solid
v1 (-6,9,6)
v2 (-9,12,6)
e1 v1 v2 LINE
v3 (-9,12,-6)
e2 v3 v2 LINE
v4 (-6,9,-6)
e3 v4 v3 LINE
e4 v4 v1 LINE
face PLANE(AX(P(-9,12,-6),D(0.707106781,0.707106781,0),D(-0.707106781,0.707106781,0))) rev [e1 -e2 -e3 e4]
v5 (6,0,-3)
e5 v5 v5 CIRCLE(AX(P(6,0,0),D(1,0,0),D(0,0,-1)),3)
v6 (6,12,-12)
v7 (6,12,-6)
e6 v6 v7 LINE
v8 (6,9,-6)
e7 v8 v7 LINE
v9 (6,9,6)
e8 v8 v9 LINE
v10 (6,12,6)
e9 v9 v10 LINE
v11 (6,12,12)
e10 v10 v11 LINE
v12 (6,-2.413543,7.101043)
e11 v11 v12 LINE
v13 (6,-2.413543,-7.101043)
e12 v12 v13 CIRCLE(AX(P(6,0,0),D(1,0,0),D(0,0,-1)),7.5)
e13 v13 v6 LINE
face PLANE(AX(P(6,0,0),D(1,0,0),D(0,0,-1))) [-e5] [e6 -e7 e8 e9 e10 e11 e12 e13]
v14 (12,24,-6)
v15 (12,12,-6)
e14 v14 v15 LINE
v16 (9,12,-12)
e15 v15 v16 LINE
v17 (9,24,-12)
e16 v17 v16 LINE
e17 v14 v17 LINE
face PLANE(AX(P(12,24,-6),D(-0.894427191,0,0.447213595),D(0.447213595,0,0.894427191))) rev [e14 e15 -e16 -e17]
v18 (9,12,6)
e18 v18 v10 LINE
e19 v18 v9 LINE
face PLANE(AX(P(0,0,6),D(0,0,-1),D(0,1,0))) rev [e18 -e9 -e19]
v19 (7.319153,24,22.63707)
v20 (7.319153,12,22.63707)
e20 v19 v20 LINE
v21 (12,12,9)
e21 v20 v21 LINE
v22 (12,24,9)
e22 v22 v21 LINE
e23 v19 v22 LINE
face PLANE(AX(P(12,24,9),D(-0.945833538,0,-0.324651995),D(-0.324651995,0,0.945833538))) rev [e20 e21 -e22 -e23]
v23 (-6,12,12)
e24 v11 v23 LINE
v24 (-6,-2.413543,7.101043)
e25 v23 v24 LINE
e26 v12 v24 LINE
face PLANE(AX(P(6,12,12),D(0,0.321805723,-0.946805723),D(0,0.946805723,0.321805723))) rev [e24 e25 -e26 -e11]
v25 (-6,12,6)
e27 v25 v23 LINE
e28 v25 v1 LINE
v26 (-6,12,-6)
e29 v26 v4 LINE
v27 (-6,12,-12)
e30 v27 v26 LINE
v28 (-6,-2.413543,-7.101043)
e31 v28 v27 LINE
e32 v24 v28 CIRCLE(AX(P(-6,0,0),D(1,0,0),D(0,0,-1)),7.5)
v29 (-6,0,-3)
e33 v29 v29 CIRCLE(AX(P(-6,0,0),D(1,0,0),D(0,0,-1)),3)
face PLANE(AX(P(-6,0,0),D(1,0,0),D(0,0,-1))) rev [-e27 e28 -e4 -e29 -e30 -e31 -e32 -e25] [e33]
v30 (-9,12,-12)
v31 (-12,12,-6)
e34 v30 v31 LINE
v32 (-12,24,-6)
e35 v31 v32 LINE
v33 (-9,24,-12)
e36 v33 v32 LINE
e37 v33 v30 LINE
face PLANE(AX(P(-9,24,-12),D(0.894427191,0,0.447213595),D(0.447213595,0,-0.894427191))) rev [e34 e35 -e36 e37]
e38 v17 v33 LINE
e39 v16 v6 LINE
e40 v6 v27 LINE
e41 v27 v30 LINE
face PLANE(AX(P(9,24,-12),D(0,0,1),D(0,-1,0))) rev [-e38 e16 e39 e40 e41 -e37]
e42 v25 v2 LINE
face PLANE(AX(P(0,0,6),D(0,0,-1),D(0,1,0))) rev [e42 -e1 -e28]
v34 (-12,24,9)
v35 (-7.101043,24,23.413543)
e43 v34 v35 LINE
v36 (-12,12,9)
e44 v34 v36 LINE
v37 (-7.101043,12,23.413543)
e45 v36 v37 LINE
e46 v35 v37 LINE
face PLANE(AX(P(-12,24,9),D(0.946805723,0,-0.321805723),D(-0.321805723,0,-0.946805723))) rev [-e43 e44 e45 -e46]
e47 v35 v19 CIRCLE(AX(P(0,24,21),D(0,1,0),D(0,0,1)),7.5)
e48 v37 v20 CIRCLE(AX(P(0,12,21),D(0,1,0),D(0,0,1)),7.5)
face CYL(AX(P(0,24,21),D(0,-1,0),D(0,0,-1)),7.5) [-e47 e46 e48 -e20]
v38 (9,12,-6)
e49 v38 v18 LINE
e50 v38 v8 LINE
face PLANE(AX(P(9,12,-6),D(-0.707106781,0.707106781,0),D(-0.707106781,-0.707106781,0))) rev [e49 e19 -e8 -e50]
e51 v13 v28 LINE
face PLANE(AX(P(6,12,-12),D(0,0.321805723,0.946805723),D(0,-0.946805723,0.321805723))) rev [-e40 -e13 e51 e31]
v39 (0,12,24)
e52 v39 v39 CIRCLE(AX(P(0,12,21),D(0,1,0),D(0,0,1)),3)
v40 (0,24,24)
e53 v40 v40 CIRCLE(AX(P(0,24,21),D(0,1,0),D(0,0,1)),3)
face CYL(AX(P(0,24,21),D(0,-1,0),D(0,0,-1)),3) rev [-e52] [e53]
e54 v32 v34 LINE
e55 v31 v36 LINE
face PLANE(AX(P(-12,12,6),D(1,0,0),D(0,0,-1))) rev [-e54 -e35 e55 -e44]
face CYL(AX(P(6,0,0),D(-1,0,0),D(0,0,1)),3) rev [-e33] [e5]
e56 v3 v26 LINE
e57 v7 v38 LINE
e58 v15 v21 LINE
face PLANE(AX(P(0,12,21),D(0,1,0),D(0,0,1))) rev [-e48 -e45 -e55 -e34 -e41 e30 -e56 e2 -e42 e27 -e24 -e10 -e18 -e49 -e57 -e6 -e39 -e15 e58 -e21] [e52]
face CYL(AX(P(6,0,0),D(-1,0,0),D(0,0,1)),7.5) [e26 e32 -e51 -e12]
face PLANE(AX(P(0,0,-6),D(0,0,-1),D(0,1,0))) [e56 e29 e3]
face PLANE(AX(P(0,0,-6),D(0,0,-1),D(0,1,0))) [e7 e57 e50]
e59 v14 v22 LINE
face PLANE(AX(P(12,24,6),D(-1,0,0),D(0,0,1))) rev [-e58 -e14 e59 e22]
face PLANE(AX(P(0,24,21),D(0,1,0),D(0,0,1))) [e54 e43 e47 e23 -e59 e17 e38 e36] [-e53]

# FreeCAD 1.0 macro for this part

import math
import FreeCAD as App
import Part
import Sketcher

V = App.Vector


def add_polygon(sketch, points):
    """Adds a closed chain of lines whose ends are joined by coincident constraints."""
    first, n = sketch.GeometryCount, len(points)
    for a, b in zip(points, points[1:] + points[:1]):
        sketch.addGeometry(Part.LineSegment(App.Vector(*a, 0), App.Vector(*b, 0)), False)
    for i in range(n):
        sketch.addConstraint(Sketcher.Constraint("Coincident", first + i, 2, first + (i + 1) % n, 1))

doc = App.newDocument("Part")
body = doc.addObject("PartDesign::Body", "Body")

# Sketch on YZ plane
sketch1 = body.newObject("Sketcher::SketchObject", "Sketch")
sketch1.AttachmentSupport = (doc.getObject("YZ_Plane"), [""])
sketch1.MapMode = "FlatFace"
sketch1.addGeometry(Part.LineSegment(V(12, -12, 0), V(12, 12, 0)), False)
sketch1.addGeometry(Part.LineSegment(V(12, 12, 0), V(-2.4, 7.1, 0)), False)
sketch1.addGeometry(Part.ArcOfCircle(Part.Circle(V(0, 0, 0), V(0, 0, 1), 7.5), math.radians(109), math.radians(251)), False)
sketch1.addGeometry(Part.LineSegment(V(-2.4, -7.1, 0), V(12, -12, 0)), False)
sketch1.addGeometry(Part.Circle(V(0, 0, 0), V(0, 0, 1), 3), False)
sketch1.addConstraint(Sketcher.Constraint("Coincident", 0, 2, 1, 1))
sketch1.addConstraint(Sketcher.Constraint("Tangent", 1, 2, 2, 1))
sketch1.addConstraint(Sketcher.Constraint("Tangent", 2, 2, 3, 1))
sketch1.addConstraint(Sketcher.Constraint("Coincident", 3, 2, 0, 1))
sketch1.addConstraint(Sketcher.Constraint("Vertical", 0))
sketch1.addConstraint(Sketcher.Constraint("Coincident", 2, 3, -1, 1))
sketch1.addConstraint(Sketcher.Constraint("Coincident", 4, 3, -1, 1))
sketch1.addConstraint(Sketcher.Constraint("Vertical", 1, 2, 2, 2))
sketch1.addConstraint(Sketcher.Constraint("Diameter", 4, 6.0))
sketch1.addConstraint(Sketcher.Constraint("Radius", 2, 7.5))
sketch1.addConstraint(Sketcher.Constraint("DistanceY", 0, 1, 0, 2, 24.0))
sketch1.addConstraint(Sketcher.Constraint("DistanceX", -1, 1, 0, 2, 12.0))
pad1 = body.newObject("PartDesign::Pad", "Pad")
pad1.Profile = sketch1
pad1.Length = 12
pad1.Midplane = True

# Sketch on XZ plane
sketch2 = body.newObject("Sketcher::SketchObject", "Sketch001")
sketch2.AttachmentSupport = (doc.getObject("XZ_Plane"), [""])
sketch2.MapMode = "FlatFace"
sketch2.AttachmentOffset = App.Placement(V(0, 0, -12), App.Rotation())
sketch2.addGeometry(Part.LineSegment(V(12, 9, 0), V(-12, 9, 0)), False)
sketch2.addGeometry(Part.LineSegment(V(-12, 9, 0), V(-7.1, 23.4, 0)), False)
sketch2.addGeometry(Part.ArcOfCircle(Part.Circle(V(0, 21, 0), V(0, 0, 1), 7.5), math.radians(13), math.radians(161)), False)
sketch2.addGeometry(Part.LineSegment(V(7.3, 22.6, 0), V(12, 9, 0)), False)
sketch2.addGeometry(Part.Circle(V(0, 21, 0), V(0, 0, 1), 3), False)
sketch2.addConstraint(Sketcher.Constraint("Coincident", 0, 2, 1, 1))
sketch2.addConstraint(Sketcher.Constraint("Tangent", 1, 2, 2, 2))
sketch2.addConstraint(Sketcher.Constraint("Coincident", 2, 1, 3, 1))
sketch2.addConstraint(Sketcher.Constraint("Coincident", 3, 2, 0, 1))
sketch2.addConstraint(Sketcher.Constraint("Horizontal", 0))
sketch2.addConstraint(Sketcher.Constraint("Coincident", 4, 3, 2, 3))
sketch2.addConstraint(Sketcher.Constraint("PointOnObject", 2, 3, -2))
sketch2.addConstraint(Sketcher.Constraint("Diameter", 4, 6.0))
sketch2.addConstraint(Sketcher.Constraint("Radius", 2, 7.5))
sketch2.addConstraint(Sketcher.Constraint("DistanceX", 0, 2, 0, 1, 24.0))
sketch2.addConstraint(Sketcher.Constraint("DistanceY", -1, 1, 2, 3, 21.0))
sketch2.addConstraint(Sketcher.Constraint("DistanceX", 0, 2, -1, 1, 12.0))
sketch2.addConstraint(Sketcher.Constraint("DistanceY", -1, 1, 0, 2, 9.0))
sketch2.addConstraint(Sketcher.Constraint("DistanceY", -1, 1, 2, 1, 22.63707))
pad2 = body.newObject("PartDesign::Pad", "Pad001")
pad2.Profile = sketch2
pad2.Length = 12
pad2.Reversed = True

# Sketch on XY plane
sketch3 = body.newObject("Sketcher::SketchObject", "Sketch002")
sketch3.AttachmentSupport = (doc.getObject("XY_Plane"), [""])
sketch3.MapMode = "FlatFace"
sketch3.AttachmentOffset = App.Placement(V(0, 0, 9), App.Rotation())
add_polygon(sketch3, [(12, 12), (-12, 12), (-12, 24), (12, 24)])  # lines 0-3
sketch3.addConstraint(Sketcher.Constraint("Horizontal", 0))
sketch3.addConstraint(Sketcher.Constraint("Vertical", 1))
sketch3.addConstraint(Sketcher.Constraint("Horizontal", 2))
sketch3.addConstraint(Sketcher.Constraint("Vertical", 3))
sketch3.addConstraint(Sketcher.Constraint("DistanceX", 0, 2, 0, 1, 24.0))
sketch3.addConstraint(Sketcher.Constraint("DistanceY", 1, 1, 1, 2, 12.0))
sketch3.addConstraint(Sketcher.Constraint("DistanceX", 0, 2, -1, 1, 12.0))
sketch3.addConstraint(Sketcher.Constraint("DistanceY", -1, 1, 0, 2, 12.0))
pad3 = body.newObject("PartDesign::Pad", "Pad002")
pad3.Profile = sketch3
pad3.Length = 3
pad3.Reversed = True

# Sketch on XY plane
sketch4 = body.newObject("Sketcher::SketchObject", "Sketch003")
sketch4.AttachmentSupport = (doc.getObject("XY_Plane"), [""])
sketch4.MapMode = "FlatFace"
sketch4.AttachmentOffset = App.Placement(V(0, 0, 6), App.Rotation())
add_polygon(sketch4, [(9, 12), (6, 9), (6, 12), (-6, 12), (-6, 9), (-9, 12), (-12, 12), (-12, 24), (12, 24), (12, 12)])  # lines 0-9
sketch4.addConstraint(Sketcher.Constraint("Vertical", 1))
sketch4.addConstraint(Sketcher.Constraint("Horizontal", 2))
sketch4.addConstraint(Sketcher.Constraint("Vertical", 3))
sketch4.addConstraint(Sketcher.Constraint("Horizontal", 5))
sketch4.addConstraint(Sketcher.Constraint("Vertical", 6))
sketch4.addConstraint(Sketcher.Constraint("Horizontal", 7))
sketch4.addConstraint(Sketcher.Constraint("Vertical", 8))
sketch4.addConstraint(Sketcher.Constraint("Horizontal", 9))
sketch4.addConstraint(Sketcher.Constraint("Symmetric", 0, 2, 3, 2, -2))
sketch4.addConstraint(Sketcher.Constraint("Symmetric", 5, 2, 8, 2, -2))
sketch4.addConstraint(Sketcher.Constraint("Perpendicular", 0, 4))
sketch4.addConstraint(Sketcher.Constraint("Horizontal", 2, 2, 4, 2))
sketch4.addConstraint(Sketcher.Constraint("Equal", 5, 9))
sketch4.addConstraint(Sketcher.Constraint("Equal", 9, 1))
sketch4.addConstraint(Sketcher.Constraint("Equal", 2, 6))
sketch4.addConstraint(Sketcher.Constraint("DistanceX", 2, 2, 2, 1, 12.0))
sketch4.addConstraint(Sketcher.Constraint("DistanceX", 5, 2, 5, 1, 3.0))
sketch4.addConstraint(Sketcher.Constraint("DistanceY", -1, 1, 0, 2, 9.0))
pad4 = body.newObject("PartDesign::Pad", "Pad003")
pad4.Profile = sketch4
pad4.Length = 12
pad4.Reversed = True

# Sketch on XZ plane
sketch5 = body.newObject("Sketcher::SketchObject", "Sketch004")
sketch5.AttachmentSupport = (doc.getObject("XZ_Plane"), [""])
sketch5.MapMode = "FlatFace"
sketch5.AttachmentOffset = App.Placement(V(0, 0, -12), App.Rotation())
add_polygon(sketch5, [(-12, -6), (12, -6), (9, -12), (-9, -12)])  # lines 0-3
sketch5.addConstraint(Sketcher.Constraint("Horizontal", 0))
sketch5.addConstraint(Sketcher.Constraint("Horizontal", 2))
sketch5.addConstraint(Sketcher.Constraint("Equal", 1, 3))
sketch5.addConstraint(Sketcher.Constraint("DistanceX", 0, 1, 0, 2, 24.0))
sketch5.addConstraint(Sketcher.Constraint("DistanceX", 2, 2, 2, 1, 18.0))
sketch5.addConstraint(Sketcher.Constraint("DistanceX", -1, 1, 0, 2, 12.0))
sketch5.addConstraint(Sketcher.Constraint("DistanceY", 0, 2, -1, 1, 6.0))
sketch5.addConstraint(Sketcher.Constraint("DistanceY", 1, 2, -1, 1, 12.0))
pad5 = body.newObject("PartDesign::Pad", "Pad004")
pad5.Profile = sketch5
pad5.Length = 12
pad5.Reversed = True

doc.recompute()
